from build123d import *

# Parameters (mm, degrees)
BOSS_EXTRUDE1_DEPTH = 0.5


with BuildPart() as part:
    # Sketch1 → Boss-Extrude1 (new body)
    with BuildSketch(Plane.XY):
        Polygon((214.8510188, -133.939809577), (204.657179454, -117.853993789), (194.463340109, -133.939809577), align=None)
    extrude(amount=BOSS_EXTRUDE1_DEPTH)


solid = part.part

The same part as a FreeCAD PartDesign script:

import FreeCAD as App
import Part
import Sketcher
Q = App.Units.Quantity


def add_polygon(sketch, points):
    """Adds a closed chain of lines whose ends are joined by coincident constraints."""
    first, n = sketch.GeometryCount, len(points)
    for a, b in zip(points, points[1:] + points[:1]):
        sketch.addGeometry(Part.LineSegment(App.Vector(*a, 0), App.Vector(*b, 0)), False)
    for i in range(n):
        sketch.addConstraint(Sketcher.Constraint("Coincident", first + i, 2, first + (i + 1) % n, 1))

doc = App.newDocument("Part")
body = doc.addObject("PartDesign::Body", "Body")

sketch1 = doc.addObject("Sketcher::SketchObject", "Sketch")
body.addObject(sketch1)
sketch1.AttachmentSupport = (doc.XY_Plane, [""])
sketch1.MapMode = "FlatFace"
add_polygon(sketch1, [(215, -134), (205, -118), (194, -134)])
sketch1.addConstraint([
    Sketcher.Constraint("Horizontal", 2),
    Sketcher.Constraint("Equal", 0, 1),
    Sketcher.Constraint("DistanceX", 2, 1, 2, 2, Q("20.387679 mm")),
    Sketcher.Constraint("Distance", 0, Q("19.04384 mm")),
    Sketcher.Constraint("DistanceX", -1, 1, 0, 2, Q("204.657179 mm")),
    Sketcher.Constraint("DistanceY", 1, 2, -1, 1, Q("133.93981 mm")),
])
pad1 = doc.addObject("PartDesign::Pad", "Pad")
body.addObject(pad1)
pad1.Profile = sketch1
pad1.Length = 0.5

doc.recompute()
